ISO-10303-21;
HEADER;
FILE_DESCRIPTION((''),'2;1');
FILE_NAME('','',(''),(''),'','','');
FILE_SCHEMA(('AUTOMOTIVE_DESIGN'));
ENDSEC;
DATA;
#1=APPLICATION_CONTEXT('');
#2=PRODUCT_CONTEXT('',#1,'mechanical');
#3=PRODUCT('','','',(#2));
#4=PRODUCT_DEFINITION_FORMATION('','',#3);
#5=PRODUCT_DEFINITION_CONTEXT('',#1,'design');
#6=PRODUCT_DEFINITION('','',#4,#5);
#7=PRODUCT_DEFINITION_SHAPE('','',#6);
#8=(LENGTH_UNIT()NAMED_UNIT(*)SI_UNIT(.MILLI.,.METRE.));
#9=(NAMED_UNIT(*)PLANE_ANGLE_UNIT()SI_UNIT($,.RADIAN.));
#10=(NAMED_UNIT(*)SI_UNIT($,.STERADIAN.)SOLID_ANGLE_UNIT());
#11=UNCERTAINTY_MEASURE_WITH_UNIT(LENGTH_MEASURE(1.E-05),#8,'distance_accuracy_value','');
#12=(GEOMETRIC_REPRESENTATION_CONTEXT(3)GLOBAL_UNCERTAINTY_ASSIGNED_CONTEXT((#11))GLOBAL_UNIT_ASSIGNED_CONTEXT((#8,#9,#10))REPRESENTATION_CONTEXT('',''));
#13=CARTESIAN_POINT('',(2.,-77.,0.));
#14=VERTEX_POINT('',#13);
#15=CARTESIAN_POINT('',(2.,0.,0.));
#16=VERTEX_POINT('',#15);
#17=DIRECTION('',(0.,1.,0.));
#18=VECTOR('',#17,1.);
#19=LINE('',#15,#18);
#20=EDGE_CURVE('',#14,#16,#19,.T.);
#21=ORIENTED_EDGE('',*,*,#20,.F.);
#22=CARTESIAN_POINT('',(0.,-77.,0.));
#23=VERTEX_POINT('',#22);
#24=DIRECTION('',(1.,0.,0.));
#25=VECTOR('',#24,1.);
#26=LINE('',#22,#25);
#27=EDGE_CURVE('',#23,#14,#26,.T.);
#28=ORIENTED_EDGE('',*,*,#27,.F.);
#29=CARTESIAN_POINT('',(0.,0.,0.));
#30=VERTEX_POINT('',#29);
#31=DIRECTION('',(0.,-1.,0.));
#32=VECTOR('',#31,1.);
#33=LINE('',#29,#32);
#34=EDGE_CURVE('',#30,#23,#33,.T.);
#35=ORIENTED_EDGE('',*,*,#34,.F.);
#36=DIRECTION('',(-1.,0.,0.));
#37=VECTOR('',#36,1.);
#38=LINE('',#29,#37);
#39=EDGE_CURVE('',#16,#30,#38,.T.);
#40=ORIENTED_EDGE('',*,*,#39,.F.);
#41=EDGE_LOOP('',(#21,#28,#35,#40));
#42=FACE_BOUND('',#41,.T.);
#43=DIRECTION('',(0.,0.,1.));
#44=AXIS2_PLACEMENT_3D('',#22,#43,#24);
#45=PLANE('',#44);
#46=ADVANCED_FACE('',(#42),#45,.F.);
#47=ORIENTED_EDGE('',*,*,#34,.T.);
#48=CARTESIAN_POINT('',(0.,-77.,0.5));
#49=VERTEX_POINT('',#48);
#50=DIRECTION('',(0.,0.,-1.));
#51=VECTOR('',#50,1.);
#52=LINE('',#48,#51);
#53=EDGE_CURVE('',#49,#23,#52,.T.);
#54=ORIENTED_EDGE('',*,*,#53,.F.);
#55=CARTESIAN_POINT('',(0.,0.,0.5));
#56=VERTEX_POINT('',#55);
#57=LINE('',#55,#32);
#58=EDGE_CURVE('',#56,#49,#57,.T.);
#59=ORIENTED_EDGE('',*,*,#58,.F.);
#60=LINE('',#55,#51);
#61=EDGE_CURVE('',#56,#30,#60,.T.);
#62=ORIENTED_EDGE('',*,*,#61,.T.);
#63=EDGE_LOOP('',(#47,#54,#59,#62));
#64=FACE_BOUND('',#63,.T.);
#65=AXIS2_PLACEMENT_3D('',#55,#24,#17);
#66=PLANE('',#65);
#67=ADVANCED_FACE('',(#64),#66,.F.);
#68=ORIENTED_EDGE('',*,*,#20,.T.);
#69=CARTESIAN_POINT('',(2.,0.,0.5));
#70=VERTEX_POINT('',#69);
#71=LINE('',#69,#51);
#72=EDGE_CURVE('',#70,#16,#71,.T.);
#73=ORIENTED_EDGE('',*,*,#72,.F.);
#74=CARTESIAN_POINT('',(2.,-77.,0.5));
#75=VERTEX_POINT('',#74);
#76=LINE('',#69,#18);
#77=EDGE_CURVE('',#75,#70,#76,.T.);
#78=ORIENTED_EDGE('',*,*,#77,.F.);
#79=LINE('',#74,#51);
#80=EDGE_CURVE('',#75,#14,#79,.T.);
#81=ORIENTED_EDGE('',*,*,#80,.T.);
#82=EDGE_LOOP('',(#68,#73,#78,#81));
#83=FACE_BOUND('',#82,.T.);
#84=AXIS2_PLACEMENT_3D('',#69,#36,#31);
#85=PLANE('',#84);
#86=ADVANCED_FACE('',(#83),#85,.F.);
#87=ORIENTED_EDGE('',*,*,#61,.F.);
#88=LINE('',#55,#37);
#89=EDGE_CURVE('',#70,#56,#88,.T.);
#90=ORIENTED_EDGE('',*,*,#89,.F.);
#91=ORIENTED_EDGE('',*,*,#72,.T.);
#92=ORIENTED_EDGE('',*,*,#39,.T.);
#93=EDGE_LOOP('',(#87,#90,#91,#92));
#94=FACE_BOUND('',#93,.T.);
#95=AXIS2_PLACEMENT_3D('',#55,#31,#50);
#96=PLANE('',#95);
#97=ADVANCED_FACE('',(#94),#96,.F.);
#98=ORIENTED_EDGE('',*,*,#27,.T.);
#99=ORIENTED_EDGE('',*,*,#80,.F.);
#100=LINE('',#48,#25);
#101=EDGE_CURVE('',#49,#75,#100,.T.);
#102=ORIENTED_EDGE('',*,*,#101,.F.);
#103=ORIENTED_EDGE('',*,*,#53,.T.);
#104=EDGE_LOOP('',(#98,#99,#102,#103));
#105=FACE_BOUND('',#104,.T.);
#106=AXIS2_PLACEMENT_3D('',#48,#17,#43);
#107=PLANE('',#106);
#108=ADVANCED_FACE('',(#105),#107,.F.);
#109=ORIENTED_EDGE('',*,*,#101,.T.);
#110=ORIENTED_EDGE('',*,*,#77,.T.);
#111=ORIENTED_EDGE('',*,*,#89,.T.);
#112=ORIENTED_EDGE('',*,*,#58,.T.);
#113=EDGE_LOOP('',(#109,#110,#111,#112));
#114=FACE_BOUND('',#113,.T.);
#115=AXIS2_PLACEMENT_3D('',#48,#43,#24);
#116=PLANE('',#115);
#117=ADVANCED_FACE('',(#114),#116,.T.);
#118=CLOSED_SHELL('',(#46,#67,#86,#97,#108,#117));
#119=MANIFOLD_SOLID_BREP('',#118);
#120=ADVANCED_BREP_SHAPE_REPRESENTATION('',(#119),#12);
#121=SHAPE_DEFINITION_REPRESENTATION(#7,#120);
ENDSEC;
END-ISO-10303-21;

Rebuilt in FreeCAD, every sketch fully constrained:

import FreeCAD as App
import Part
import Sketcher
from FreeCAD import Vector


def add_polygon(sketch, points):
    """Adds a closed chain of lines whose ends are joined by coincident constraints."""
    first, n = sketch.GeometryCount, len(points)
    for a, b in zip(points, points[1:] + points[:1]):
        sketch.addGeometry(Part.LineSegment(App.Vector(*a, 0), App.Vector(*b, 0)), False)
    for i in range(n):
        sketch.addConstraint(Sketcher.Constraint("Coincident", first + i, 2, first + (i + 1) % n, 1))

doc = App.newDocument("Part")
params = doc.addObject("Spreadsheet::Sheet", "Params")
for row, (alias, value) in enumerate([
    ("sketch1_width", "2 mm"),
    ("sketch1_height", "77 mm"),
    ("pad1_length", "0.5 mm"),
], start=1):
    params.set(f"A{row}", alias)
    params.set(f"B{row}", "=" + value)
    params.setAlias(f"B{row}", alias)

body = doc.addObject("PartDesign::Body", "Body")

sketch1 = doc.addObject("Sketcher::SketchObject", "Sketch")
body.addObject(sketch1)
sketch1.AttachmentSupport = (doc.XY_Plane, [""])
sketch1.MapMode = "FlatFace"
add_polygon(sketch1, [(0, 0), (0, -77), (2, -77), (2, 0)])
sketch1.addConstraint([
    Sketcher.Constraint("Vertical", 0),
    Sketcher.Constraint("Horizontal", 1),
    Sketcher.Constraint("Vertical", 2),
    Sketcher.Constraint("Horizontal", 3),
    Sketcher.Constraint("Coincident", 3, 2, -1, 1),
    Sketcher.Constraint("DistanceX", 1, 1, 1, 2, 2.0),
    Sketcher.Constraint("DistanceY", 0, 2, 0, 1, 77.0),
])
sketch1.setExpression("Constraints[9]", "Params.sketch1_width")
sketch1.setExpression("Constraints[10]", "Params.sketch1_height")
pad1 = doc.addObject("PartDesign::Pad", "Pad")
body.addObject(pad1)
pad1.Profile = sketch1
pad1.setExpression("Length", "Params.pad1_length")

doc.recompute()
